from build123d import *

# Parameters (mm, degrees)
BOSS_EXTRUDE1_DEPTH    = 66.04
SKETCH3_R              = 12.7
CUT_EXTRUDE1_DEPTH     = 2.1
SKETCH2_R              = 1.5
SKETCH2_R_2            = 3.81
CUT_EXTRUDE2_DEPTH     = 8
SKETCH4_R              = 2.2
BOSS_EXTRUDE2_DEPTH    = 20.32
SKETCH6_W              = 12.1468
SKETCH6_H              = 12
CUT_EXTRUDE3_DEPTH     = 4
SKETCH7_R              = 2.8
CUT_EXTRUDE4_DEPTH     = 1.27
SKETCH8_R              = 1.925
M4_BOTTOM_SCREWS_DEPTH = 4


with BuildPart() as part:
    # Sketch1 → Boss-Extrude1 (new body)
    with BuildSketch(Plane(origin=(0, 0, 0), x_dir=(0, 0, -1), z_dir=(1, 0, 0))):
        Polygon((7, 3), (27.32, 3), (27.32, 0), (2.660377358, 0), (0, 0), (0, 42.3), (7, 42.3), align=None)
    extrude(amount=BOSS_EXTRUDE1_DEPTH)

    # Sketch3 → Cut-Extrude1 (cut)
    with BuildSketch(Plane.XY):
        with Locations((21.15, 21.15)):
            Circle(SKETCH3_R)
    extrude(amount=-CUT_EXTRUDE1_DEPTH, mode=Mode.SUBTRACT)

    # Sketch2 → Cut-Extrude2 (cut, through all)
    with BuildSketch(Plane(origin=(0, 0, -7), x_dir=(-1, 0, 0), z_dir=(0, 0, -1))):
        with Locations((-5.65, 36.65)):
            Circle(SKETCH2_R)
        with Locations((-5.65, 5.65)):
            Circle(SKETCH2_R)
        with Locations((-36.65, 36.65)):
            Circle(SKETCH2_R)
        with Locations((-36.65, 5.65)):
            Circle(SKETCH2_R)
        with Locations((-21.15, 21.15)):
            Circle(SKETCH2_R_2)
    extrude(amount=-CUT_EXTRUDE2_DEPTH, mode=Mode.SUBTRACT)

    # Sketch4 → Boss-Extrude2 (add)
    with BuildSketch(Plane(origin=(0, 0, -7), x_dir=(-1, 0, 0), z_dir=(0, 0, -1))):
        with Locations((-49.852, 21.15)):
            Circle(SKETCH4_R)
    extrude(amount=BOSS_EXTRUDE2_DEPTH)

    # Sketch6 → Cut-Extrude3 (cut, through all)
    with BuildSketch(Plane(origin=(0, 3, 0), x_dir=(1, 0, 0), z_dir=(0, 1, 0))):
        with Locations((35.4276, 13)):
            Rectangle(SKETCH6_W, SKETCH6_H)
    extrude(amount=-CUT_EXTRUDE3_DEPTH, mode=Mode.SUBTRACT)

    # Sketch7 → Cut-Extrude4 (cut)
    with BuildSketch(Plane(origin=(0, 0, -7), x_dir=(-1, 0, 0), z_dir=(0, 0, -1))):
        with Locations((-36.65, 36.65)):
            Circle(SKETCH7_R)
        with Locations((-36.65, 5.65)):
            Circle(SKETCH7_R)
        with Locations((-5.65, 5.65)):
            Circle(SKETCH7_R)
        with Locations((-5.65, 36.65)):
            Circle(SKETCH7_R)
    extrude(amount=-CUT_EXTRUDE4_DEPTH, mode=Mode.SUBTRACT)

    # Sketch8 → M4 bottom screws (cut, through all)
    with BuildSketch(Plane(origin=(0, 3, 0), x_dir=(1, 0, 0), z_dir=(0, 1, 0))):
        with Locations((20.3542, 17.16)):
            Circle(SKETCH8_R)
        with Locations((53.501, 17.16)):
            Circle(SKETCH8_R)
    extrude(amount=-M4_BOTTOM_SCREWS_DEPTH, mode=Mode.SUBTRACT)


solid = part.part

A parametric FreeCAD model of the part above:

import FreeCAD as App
import Part
import Sketcher


def add_polygon(sketch, points):
    """Adds a closed chain of lines whose ends are joined by coincident constraints."""
    first, n = sketch.GeometryCount, len(points)
    for a, b in zip(points, points[1:] + points[:1]):
        sketch.addGeometry(Part.LineSegment(App.Vector(*a, 0), App.Vector(*b, 0)), False)
    for i in range(n):
        sketch.addConstraint(Sketcher.Constraint("Coincident", first + i, 2, first + (i + 1) % n, 1))

doc = App.newDocument("Part")
body = doc.addObject("PartDesign::Body", "Body")

sketch1 = body.newObject("Sketcher::SketchObject", "Sketch")
sketch1.AttachmentSupport = (doc.getObject("YZ_Plane"), [""])
sketch1.MapMode = "FlatFace"
add_polygon(sketch1, [(3, -27.3), (3, -7), (42.3, -7), (42.3, 0), (0, 0), (0, -27.3)])
sketch1.addConstraint([
    Sketcher.Constraint("Vertical", 0),
    Sketcher.Constraint("Horizontal", 1),
    Sketcher.Constraint("Vertical", 2),
    Sketcher.Constraint("Horizontal", 3),
    Sketcher.Constraint("Vertical", 4),
    Sketcher.Constraint("Horizontal", 5),
    Sketcher.Constraint("Coincident", 3, 2, -1, 1),
    Sketcher.Constraint("DistanceX", 5, 1, 5, 2, 3.0),
    Sketcher.Constraint("DistanceY", 2, 1, 2, 2, 7.0),
    Sketcher.Constraint("DistanceX", 1, 1, 1, 2, 39.3),
    Sketcher.Constraint("DistanceY", 0, 1, 0, 2, 20.32),
])
pad1 = body.newObject("PartDesign::Pad", "Pad")
pad1.Profile = sketch1
pad1.Length = 66.04

sketch2 = body.newObject("Sketcher::SketchObject", "Sketch001")
sketch2.AttachmentSupport = (doc.getObject("XY_Plane"), [""])
sketch2.MapMode = "FlatFace"
sketch2.addGeometry(Part.Circle(App.Vector(21, 21, 0), App.Vector(0, 0, 1), 13), False)
sketch2.addConstraint([
    Sketcher.Constraint("Diameter", 0, 25.4),
    Sketcher.Constraint("DistanceX", -1, 1, 0, 3, 21.15),
    Sketcher.Constraint("DistanceY", -1, 1, 0, 3, 21.15),
])
pocket1 = body.newObject("PartDesign::Pocket", "Pocket")
pocket1.Profile = sketch2
pocket1.Length = 2.1

sketch3 = body.newObject("Sketcher::SketchObject", "Sketch002")
sketch3.AttachmentSupport = (doc.getObject("XY_Plane"), [""])
sketch3.MapMode = "FlatFace"
sketch3.AttachmentOffset = App.Placement(App.Vector(0, 0, -7), App.Rotation())
sketch3.addGeometry([
    Part.Circle(App.Vector(5.7, 36.6, 0), App.Vector(0, 0, 1), 1.5),
    Part.Circle(App.Vector(5.7, 5.7, 0), App.Vector(0, 0, 1), 1.5),
    Part.Circle(App.Vector(36.6, 36.6, 0), App.Vector(0, 0, 1), 1.5),
    Part.Circle(App.Vector(36.6, 5.7, 0), App.Vector(0, 0, 1), 1.5),
    Part.Circle(App.Vector(21.1, 21.1, 0), App.Vector(0, 0, 1), 3.8),
], False)
sketch3.addConstraint([
    Sketcher.Constraint("Equal", 0, 1),
    Sketcher.Constraint("Equal", 1, 2),
    Sketcher.Constraint("Equal", 2, 3),
    Sketcher.Constraint("Horizontal", 0, 3, 2, 3),
    Sketcher.Constraint("Horizontal", 1, 3, 3, 3),
    Sketcher.Constraint("Vertical", 0, 3, 1, 3),
    Sketcher.Constraint("Vertical", 2, 3, 3, 3),
    Sketcher.Constraint("Diameter", 0, 3.0),
    Sketcher.Constraint("Diameter", 4, 7.62),
    Sketcher.Constraint("DistanceY", 1, 3, 0, 3, 31.0),
    Sketcher.Constraint("DistanceX", 0, 3, 2, 3, 31.0),
    Sketcher.Constraint("DistanceX", 1, 3, 4, 3, 15.5),
    Sketcher.Constraint("DistanceY", 1, 3, 4, 3, 15.5),
    Sketcher.Constraint("DistanceX", -1, 1, 0, 3, 5.65),
    Sketcher.Constraint("DistanceY", -1, 1, 0, 3, 36.65),
])
pocket2 = body.newObject("PartDesign::Pocket", "Pocket001")
pocket2.Profile = sketch3
pocket2.Type = "ThroughAll"
pocket2.Reversed = True

sketch4 = body.newObject("Sketcher::SketchObject", "Sketch003")
sketch4.AttachmentSupport = (doc.getObject("XY_Plane"), [""])
sketch4.MapMode = "FlatFace"
sketch4.AttachmentOffset = App.Placement(App.Vector(0, 0, -7), App.Rotation())
sketch4.addGeometry(Part.Circle(App.Vector(49.9, 21.1, 0), App.Vector(0, 0, 1), 2.2), False)
sketch4.addConstraint([
    Sketcher.Constraint("Diameter", 0, 4.4),
    Sketcher.Constraint("DistanceY", -1, 1, 0, 3, 21.15),
    Sketcher.Constraint("DistanceX", -1, 1, 0, 3, 49.852),
])
pad2 = body.newObject("PartDesign::Pad", "Pad001")
pad2.Profile = sketch4
pad2.Length = 20.32
pad2.Reversed = True

sketch5 = body.newObject("Sketcher::SketchObject", "Sketch004")
sketch5.AttachmentSupport = (doc.getObject("XZ_Plane"), [""])
sketch5.MapMode = "FlatFace"
sketch5.AttachmentOffset = App.Placement(App.Vector(0, 0, -3), App.Rotation())
add_polygon(sketch5, [(29, -19), (29, -7), (42, -7), (42, -19)])
sketch5.addConstraint([
    Sketcher.Constraint("Vertical", 0),
    Sketcher.Constraint("Horizontal", 1),
    Sketcher.Constraint("Vertical", 2),
    Sketcher.Constraint("Horizontal", 3),
    Sketcher.Constraint("DistanceY", 0, 1, 0, 2, 12.0),
    Sketcher.Constraint("DistanceY", 0, 2, -1, 1, 7.0),
    Sketcher.Constraint("DistanceX", 1, 1, 1, 2, 12.1468),
    Sketcher.Constraint("DistanceX", -1, 1, 1, 2, 41.501),
])
pocket3 = body.newObject("PartDesign::Pocket", "Pocket002")
pocket3.Profile = sketch5
pocket3.Type = "ThroughAll"
pocket3.Reversed = True

sketch6 = body.newObject("Sketcher::SketchObject", "Sketch005")
sketch6.AttachmentSupport = (doc.getObject("XY_Plane"), [""])
sketch6.MapMode = "FlatFace"
sketch6.AttachmentOffset = App.Placement(App.Vector(0, 0, -7), App.Rotation())
sketch6.addGeometry([
    Part.Circle(App.Vector(36.6, 36.6, 0), App.Vector(0, 0, 1), 2.8),
    Part.Circle(App.Vector(36.6, 5.7, 0), App.Vector(0, 0, 1), 2.8),
    Part.Circle(App.Vector(5.7, 5.7, 0), App.Vector(0, 0, 1), 2.8),
    Part.Circle(App.Vector(5.7, 36.6, 0), App.Vector(0, 0, 1), 2.8),
], False)
sketch6.addConstraint([
    Sketcher.Constraint("Equal", 0, 1),
    Sketcher.Constraint("Equal", 1, 2),
    Sketcher.Constraint("Equal", 2, 3),
    Sketcher.Constraint("Horizontal", 1, 3, 2, 3),
    Sketcher.Constraint("Horizontal", 0, 3, 3, 3),
    Sketcher.Constraint("Vertical", 0, 3, 1, 3),
    Sketcher.Constraint("Vertical", 2, 3, 3, 3),
    Sketcher.Constraint("Diameter", 0, 5.6),
    Sketcher.Constraint("DistanceY", 1, 3, 0, 3, 31.0),
    Sketcher.Constraint("DistanceX", 2, 3, 1, 3, 31.0),
    Sketcher.Constraint("DistanceX", -1, 1, 0, 3, 36.65),
    Sketcher.Constraint("DistanceY", -1, 1, 0, 3, 36.65),
])
pocket4 = body.newObject("PartDesign::Pocket", "Pocket003")
pocket4.Profile = sketch6
pocket4.Length = 1.27
pocket4.Reversed = True

sketch7 = body.newObject("Sketcher::SketchObject", "Sketch006")
sketch7.AttachmentSupport = (doc.getObject("XZ_Plane"), [""])
sketch7.MapMode = "FlatFace"
sketch7.AttachmentOffset = App.Placement(App.Vector(0, 0, -3), App.Rotation())
sketch7.addGeometry([
    Part.Circle(App.Vector(20.4, -17.2, 0), App.Vector(0, 0, 1), 1.9),
    Part.Circle(App.Vector(53.5, -17.2, 0), App.Vector(0, 0, 1), 1.9),
], False)
sketch7.addConstraint([
    Sketcher.Constraint("Equal", 0, 1),
    Sketcher.Constraint("Horizontal", 0, 3, 1, 3),
    Sketcher.Constraint("Diameter", 0, 3.85),
    Sketcher.Constraint("DistanceY", 0, 3, -1, 1, 17.16),
    Sketcher.Constraint("DistanceX", -1, 1, 1, 3, 53.501),
    Sketcher.Constraint("DistanceX", -1, 1, 0, 3, 20.3542),
])
pocket5 = body.newObject("PartDesign::Pocket", "Pocket004")
pocket5.Profile = sketch7
pocket5.Type = "ThroughAll"
pocket5.Reversed = True

doc.recompute()
